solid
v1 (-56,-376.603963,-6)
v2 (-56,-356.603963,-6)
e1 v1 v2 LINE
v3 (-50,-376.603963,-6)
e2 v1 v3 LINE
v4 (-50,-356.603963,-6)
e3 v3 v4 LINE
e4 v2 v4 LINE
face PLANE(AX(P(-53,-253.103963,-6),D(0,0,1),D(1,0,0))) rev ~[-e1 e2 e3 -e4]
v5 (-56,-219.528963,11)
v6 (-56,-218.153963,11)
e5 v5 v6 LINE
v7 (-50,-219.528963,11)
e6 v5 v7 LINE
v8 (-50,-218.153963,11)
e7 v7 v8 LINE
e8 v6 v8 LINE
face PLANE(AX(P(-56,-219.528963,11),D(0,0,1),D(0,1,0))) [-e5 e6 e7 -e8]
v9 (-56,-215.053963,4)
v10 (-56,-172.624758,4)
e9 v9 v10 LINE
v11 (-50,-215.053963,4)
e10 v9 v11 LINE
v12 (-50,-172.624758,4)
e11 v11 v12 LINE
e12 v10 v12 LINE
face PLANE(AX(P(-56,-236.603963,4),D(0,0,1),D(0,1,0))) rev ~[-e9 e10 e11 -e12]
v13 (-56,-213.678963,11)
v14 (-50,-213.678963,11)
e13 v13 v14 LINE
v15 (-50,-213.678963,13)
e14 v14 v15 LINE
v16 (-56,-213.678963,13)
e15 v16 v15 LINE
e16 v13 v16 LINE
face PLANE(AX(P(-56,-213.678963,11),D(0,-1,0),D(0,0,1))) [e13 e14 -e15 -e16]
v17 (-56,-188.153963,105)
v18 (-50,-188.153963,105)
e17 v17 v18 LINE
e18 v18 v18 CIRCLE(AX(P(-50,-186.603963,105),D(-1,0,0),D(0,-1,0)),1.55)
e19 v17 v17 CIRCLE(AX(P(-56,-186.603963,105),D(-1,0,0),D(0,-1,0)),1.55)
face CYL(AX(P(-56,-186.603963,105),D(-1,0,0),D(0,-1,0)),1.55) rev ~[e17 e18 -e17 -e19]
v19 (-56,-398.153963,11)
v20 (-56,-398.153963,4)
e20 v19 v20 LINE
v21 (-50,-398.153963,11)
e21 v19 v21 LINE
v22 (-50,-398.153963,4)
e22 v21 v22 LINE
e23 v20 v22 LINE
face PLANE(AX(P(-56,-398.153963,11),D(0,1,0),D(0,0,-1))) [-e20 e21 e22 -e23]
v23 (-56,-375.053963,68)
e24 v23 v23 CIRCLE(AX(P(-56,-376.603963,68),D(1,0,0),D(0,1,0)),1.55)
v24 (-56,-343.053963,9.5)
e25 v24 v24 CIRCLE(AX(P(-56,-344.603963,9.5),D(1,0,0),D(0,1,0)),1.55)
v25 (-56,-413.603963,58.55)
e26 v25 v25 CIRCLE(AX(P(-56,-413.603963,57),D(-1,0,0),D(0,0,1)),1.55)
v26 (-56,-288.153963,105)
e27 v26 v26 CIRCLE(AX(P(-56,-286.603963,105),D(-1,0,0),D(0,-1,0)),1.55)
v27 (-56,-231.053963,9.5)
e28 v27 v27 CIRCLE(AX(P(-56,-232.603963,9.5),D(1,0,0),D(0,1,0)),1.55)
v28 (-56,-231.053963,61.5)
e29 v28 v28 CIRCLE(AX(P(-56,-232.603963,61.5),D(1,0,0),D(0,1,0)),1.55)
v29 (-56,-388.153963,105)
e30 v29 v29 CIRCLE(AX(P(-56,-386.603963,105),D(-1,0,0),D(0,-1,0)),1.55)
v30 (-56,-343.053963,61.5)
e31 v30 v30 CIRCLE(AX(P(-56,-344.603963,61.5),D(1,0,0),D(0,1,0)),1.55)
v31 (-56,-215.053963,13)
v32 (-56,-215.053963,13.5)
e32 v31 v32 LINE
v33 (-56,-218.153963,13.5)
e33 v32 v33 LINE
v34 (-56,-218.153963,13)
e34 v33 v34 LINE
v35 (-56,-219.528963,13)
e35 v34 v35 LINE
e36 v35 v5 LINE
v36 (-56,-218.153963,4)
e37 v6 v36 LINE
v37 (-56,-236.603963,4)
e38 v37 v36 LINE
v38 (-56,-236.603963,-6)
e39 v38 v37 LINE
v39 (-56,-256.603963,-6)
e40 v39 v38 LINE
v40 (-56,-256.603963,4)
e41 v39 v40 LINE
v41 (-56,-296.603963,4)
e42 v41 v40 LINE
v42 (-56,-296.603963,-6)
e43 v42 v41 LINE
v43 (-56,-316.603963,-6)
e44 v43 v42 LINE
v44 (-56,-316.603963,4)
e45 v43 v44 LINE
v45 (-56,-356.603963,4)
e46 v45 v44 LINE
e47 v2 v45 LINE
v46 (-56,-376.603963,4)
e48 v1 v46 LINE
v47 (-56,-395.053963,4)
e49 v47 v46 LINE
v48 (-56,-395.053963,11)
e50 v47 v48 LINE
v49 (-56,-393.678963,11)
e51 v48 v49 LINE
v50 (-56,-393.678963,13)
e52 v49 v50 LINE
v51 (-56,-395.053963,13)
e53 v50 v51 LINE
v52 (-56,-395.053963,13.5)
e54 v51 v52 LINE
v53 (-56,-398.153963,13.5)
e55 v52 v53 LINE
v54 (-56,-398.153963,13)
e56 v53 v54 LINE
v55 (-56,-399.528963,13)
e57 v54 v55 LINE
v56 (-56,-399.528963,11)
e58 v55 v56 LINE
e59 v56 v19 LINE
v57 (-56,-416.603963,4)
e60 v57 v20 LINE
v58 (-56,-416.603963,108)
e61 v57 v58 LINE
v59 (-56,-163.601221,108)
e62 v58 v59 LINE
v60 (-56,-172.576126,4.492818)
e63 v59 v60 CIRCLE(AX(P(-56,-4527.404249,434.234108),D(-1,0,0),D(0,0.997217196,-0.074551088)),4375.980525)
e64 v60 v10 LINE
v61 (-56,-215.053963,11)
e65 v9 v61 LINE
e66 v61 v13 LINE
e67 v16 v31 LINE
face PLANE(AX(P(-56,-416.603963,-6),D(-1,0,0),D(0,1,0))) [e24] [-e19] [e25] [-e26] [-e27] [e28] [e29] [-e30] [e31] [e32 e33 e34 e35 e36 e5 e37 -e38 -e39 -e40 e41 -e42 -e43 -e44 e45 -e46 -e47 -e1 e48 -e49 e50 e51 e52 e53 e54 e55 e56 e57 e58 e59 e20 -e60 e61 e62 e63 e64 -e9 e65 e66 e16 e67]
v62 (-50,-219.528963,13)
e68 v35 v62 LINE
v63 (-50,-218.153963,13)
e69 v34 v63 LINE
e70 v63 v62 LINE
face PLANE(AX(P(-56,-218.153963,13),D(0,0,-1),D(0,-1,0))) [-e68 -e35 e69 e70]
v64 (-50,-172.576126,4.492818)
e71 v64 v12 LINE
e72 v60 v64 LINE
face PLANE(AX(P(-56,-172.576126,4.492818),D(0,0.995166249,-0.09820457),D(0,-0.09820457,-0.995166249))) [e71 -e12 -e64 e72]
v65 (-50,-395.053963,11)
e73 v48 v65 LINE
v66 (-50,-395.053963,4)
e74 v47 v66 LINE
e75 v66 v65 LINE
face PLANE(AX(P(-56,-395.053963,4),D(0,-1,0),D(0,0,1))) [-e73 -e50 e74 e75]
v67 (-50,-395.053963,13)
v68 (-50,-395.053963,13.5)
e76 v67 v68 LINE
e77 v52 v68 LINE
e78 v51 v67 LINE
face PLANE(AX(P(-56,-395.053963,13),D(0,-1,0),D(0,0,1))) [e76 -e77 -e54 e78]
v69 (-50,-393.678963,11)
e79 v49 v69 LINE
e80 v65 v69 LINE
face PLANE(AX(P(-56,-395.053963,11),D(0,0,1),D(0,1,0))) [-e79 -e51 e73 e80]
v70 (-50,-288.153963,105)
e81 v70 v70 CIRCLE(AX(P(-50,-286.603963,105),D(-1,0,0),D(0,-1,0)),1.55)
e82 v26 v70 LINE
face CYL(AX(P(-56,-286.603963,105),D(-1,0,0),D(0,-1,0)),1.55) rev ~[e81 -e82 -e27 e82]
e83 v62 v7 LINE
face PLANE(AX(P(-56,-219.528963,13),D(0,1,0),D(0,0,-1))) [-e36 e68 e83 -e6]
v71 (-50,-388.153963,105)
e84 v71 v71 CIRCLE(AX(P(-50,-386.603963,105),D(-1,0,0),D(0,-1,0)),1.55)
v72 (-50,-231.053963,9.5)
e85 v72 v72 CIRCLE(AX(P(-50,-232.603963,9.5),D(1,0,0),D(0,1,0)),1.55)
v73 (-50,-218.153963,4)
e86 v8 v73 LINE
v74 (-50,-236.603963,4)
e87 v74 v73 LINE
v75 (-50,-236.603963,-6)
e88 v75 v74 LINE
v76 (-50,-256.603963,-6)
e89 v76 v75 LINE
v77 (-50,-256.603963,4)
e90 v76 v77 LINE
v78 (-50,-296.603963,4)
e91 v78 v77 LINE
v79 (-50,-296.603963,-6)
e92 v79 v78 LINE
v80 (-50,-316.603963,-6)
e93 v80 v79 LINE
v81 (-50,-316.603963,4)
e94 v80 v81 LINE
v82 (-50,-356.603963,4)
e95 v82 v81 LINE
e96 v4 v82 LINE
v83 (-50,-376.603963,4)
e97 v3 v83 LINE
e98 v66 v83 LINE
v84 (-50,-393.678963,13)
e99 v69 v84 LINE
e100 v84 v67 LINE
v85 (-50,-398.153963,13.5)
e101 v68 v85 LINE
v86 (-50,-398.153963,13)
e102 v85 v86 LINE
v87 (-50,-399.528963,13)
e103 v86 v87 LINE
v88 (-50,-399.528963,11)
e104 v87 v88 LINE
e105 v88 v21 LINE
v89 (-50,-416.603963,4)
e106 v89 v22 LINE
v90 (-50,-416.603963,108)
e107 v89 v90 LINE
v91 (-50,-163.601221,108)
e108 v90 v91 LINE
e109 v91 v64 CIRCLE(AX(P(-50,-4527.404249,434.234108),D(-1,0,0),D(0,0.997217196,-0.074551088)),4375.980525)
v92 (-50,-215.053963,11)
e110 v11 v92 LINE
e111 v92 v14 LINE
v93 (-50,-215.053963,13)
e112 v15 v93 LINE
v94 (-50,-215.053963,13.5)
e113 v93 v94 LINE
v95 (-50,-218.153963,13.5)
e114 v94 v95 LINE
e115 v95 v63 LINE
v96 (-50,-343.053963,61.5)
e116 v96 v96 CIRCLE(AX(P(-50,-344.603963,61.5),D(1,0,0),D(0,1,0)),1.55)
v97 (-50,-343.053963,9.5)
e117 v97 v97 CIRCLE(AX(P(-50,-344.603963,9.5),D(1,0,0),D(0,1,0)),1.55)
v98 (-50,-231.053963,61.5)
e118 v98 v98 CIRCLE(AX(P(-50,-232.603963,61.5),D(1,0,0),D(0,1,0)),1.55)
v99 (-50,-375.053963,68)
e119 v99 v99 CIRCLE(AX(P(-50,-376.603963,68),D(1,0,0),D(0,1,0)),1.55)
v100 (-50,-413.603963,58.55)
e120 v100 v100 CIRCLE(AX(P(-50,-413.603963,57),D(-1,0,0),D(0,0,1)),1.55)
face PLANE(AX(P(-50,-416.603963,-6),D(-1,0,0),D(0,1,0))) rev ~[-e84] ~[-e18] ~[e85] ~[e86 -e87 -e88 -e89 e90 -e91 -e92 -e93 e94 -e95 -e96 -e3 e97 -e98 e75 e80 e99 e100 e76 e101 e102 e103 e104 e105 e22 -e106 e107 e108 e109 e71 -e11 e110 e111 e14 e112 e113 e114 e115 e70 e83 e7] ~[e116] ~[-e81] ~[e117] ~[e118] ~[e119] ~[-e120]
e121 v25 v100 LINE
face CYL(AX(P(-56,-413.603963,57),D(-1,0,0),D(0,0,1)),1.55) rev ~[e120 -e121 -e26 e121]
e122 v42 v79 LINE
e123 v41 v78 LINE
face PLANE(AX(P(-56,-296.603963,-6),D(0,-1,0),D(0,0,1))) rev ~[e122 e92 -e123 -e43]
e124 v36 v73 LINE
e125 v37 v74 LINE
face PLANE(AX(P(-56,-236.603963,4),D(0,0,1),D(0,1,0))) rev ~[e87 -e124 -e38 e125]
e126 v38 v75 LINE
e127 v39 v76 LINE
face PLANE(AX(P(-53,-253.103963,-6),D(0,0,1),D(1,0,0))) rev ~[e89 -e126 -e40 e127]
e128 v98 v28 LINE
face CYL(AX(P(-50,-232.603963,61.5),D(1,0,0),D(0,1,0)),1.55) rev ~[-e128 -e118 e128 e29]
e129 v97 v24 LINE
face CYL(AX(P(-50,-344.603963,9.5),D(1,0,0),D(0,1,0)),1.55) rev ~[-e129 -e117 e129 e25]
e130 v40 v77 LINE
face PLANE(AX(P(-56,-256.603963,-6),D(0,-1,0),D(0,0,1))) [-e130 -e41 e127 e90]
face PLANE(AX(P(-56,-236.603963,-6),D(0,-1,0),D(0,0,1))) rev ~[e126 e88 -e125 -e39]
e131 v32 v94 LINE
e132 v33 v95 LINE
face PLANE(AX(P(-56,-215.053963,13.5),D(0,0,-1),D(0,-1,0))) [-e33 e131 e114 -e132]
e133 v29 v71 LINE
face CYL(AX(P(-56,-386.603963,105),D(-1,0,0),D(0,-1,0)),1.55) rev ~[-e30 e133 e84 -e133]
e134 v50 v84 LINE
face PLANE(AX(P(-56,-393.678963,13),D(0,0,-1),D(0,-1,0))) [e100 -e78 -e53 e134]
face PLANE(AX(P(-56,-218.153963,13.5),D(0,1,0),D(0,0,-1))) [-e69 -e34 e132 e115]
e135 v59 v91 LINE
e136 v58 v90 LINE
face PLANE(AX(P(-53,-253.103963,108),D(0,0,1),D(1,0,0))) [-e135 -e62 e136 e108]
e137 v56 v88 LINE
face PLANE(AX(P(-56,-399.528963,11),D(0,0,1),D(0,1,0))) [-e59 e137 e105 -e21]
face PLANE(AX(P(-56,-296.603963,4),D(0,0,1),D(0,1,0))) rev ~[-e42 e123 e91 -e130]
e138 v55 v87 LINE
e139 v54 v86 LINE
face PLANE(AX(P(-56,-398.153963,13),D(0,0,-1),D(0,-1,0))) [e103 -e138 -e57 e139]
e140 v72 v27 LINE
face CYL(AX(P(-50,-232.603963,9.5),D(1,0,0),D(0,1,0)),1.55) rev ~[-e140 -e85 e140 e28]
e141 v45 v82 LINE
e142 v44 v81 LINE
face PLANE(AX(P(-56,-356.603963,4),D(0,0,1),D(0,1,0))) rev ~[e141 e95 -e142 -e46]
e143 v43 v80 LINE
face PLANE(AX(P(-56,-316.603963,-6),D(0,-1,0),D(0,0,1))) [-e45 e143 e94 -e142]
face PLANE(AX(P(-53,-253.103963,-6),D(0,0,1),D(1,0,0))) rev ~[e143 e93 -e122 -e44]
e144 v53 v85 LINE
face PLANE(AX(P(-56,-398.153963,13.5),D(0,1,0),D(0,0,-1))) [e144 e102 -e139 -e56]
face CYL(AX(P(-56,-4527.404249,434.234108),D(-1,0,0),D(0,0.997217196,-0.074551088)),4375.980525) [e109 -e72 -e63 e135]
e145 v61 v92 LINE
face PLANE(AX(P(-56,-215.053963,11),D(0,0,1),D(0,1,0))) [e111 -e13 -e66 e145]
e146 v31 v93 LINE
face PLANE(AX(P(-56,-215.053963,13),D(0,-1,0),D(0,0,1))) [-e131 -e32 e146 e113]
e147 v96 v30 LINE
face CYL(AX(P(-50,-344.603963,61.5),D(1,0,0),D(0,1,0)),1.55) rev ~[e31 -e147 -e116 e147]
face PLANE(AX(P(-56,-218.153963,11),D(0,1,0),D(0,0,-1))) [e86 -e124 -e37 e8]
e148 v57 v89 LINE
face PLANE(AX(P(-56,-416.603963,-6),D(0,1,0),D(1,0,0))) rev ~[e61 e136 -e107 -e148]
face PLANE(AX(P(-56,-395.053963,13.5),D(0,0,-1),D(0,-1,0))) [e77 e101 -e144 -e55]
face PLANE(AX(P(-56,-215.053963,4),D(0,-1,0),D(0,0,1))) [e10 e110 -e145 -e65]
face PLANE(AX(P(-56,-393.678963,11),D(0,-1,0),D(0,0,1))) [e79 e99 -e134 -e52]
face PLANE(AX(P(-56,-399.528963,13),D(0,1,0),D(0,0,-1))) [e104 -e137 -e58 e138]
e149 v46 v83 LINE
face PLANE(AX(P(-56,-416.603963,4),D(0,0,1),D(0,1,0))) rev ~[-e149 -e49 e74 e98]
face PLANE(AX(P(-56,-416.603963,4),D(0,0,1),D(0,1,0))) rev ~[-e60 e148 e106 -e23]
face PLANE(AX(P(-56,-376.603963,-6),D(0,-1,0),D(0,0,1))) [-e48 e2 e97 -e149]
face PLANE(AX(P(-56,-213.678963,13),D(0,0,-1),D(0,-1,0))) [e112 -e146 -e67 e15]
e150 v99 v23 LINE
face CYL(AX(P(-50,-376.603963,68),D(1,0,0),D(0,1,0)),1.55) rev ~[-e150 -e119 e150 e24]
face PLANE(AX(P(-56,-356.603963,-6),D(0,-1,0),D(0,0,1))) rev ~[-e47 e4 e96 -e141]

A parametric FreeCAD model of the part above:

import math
import FreeCAD as App
import Part
import Sketcher


def add_polygon(sketch, points):
    """Adds a closed chain of lines whose ends are joined by coincident constraints."""
    first, n = sketch.GeometryCount, len(points)
    for a, b in zip(points, points[1:] + points[:1]):
        sketch.addGeometry(Part.LineSegment(App.Vector(*a, 0), App.Vector(*b, 0)), False)
    for i in range(n):
        sketch.addConstraint(Sketcher.Constraint("Coincident", first + i, 2, first + (i + 1) % n, 1))

doc = App.newDocument("Part")
body = doc.addObject("PartDesign::Body", "Body")

# Sketch on XY plane
sketch1 = body.newObject("Sketcher::SketchObject", "Sketch")
sketch1.AttachmentSupport = (doc.getObject("XY_Plane"), [""])
sketch1.MapMode = "FlatFace"
add_polygon(sketch1, [(-56, -90), (-56, -417), (-50, -417), (-50, -90)])  # lines 0-3
sketch1.addConstraint([
    Sketcher.Constraint("Vertical", 0),
    Sketcher.Constraint("Horizontal", 1),
    Sketcher.Constraint("Vertical", 2),
    Sketcher.Constraint("Horizontal", 3),
    Sketcher.Constraint("DistanceX", 1, 1, 1, 2, 6.0),
    Sketcher.Constraint("DistanceY", 0, 2, 0, 1, 327.0),
    Sketcher.Constraint("DistanceX", 0, 2, -1, 1, 56.0),
    Sketcher.Constraint("DistanceY", 0, 2, -1, 1, 416.603963),
])
pad1 = body.newObject("PartDesign::Pad", "Pad")
pad1.Profile = sketch1
pad1.Type = "TwoLengths"
pad1.Length = 108
pad1.Length2 = 6

# Sketch on YZ plane
sketch2 = body.newObject("Sketcher::SketchObject", "Sketch001")
sketch2.AttachmentSupport = (doc.getObject("YZ_Plane"), [""])
sketch2.MapMode = "FlatFace"
sketch2.AttachmentOffset = App.Placement(App.Vector(0, 0, -56), App.Rotation())
add_polygon(sketch2, [(-377, -6), (-417, -6), (-417, 4), (-377, 4)])  # lines 0-3
add_polygon(sketch2, [(-317, -6), (-357, -6), (-357, 4), (-317, 4)])  # lines 4-7
add_polygon(sketch2, [(-43, 4), (-43, -6), (-237, -6), (-237, 4)])  # lines 8-11
add_polygon(sketch2, [(-257, -6), (-297, -6), (-297, 4), (-257, 4)])  # lines 12-15
sketch2.addConstraint([
    Sketcher.Constraint("Horizontal", 0),
    Sketcher.Constraint("Vertical", 1),
    Sketcher.Constraint("Horizontal", 2),
    Sketcher.Constraint("Vertical", 3),
    Sketcher.Constraint("Horizontal", 4),
    Sketcher.Constraint("Vertical", 5),
    Sketcher.Constraint("Horizontal", 6),
    Sketcher.Constraint("Vertical", 7),
    Sketcher.Constraint("Vertical", 8),
    Sketcher.Constraint("Horizontal", 9),
    Sketcher.Constraint("Vertical", 10),
    Sketcher.Constraint("Horizontal", 11),
    Sketcher.Constraint("Horizontal", 12),
    Sketcher.Constraint("Vertical", 13),
    Sketcher.Constraint("Horizontal", 14),
    Sketcher.Constraint("Vertical", 15),
    Sketcher.Constraint("Horizontal", 3, 2, 4, 2),
    Sketcher.Constraint("Horizontal", 2, 2, 5, 2),
    Sketcher.Constraint("Horizontal", 7, 2, 8, 2),
    Sketcher.Constraint("Horizontal", 6, 2, 10, 2),
    Sketcher.Constraint("Horizontal", 9, 2, 12, 2),
    Sketcher.Constraint("Horizontal", 11, 2, 13, 2),
    Sketcher.Constraint("Equal", 2, 4),
    Sketcher.Constraint("Equal", 6, 12),
    Sketcher.Constraint("DistanceX", 0, 2, 0, 1, 40.0),
    Sketcher.Constraint("DistanceY", 1, 1, 1, 2, 10.0),
    Sketcher.Constraint("DistanceY", 0, 2, -1, 1, 6.0),
    Sketcher.Constraint("DistanceX", 3, 2, 4, 2, 20.0),
    Sketcher.Constraint("DistanceX", 7, 2, 9, 2, 80.0),
    Sketcher.Constraint("DistanceX", 7, 2, 12, 2, 20.0),
    Sketcher.Constraint("DistanceX", 9, 2, 9, 1, 193.984108),
    Sketcher.Constraint("DistanceX", 0, 2, -1, 1, 416.603963),
])
pocket1 = body.newObject("PartDesign::Pocket", "Pocket")
pocket1.Profile = sketch2
pocket1.Length = 6
pocket1.Reversed = True

# Sketch on YZ plane
sketch3 = body.newObject("Sketcher::SketchObject", "Sketch002")
sketch3.AttachmentSupport = (doc.getObject("YZ_Plane"), [""])
sketch3.MapMode = "FlatFace"
sketch3.AttachmentOffset = App.Placement(App.Vector(0, 0, -56), App.Rotation())
sketch3.addGeometry(Part.Circle(App.Vector(-413.6, 57, 0), App.Vector(0, 0, 1), 1.6), False)
sketch3.addConstraint([
    Sketcher.Constraint("Diameter", 0, 3.1),
    Sketcher.Constraint("DistanceY", -1, 1, 0, 3, 57.0),
    Sketcher.Constraint("DistanceX", 0, 3, -1, 1, 413.603963),
])
pocket2 = body.newObject("PartDesign::Pocket", "Pocket001")
pocket2.Profile = sketch3
pocket2.Length = 6
pocket2.Reversed = True

# Sketch on YZ plane
sketch4 = body.newObject("Sketcher::SketchObject", "Sketch003")
sketch4.AttachmentSupport = (doc.getObject("YZ_Plane"), [""])
sketch4.MapMode = "FlatFace"
sketch4.AttachmentOffset = App.Placement(App.Vector(0, 0, -56), App.Rotation())
add_polygon(sketch4, [(-395.1, 11), (-395.1, 4), (-398.2, 4), (-398.2, 11), (-399.5, 11), (-399.5, 13), (-398.2, 13), (-398.2, 13.5), (-395.1, 13.5), (-395.1, 13), (-393.7, 13), (-393.7, 11)])  # lines 0-11
sketch4.addConstraint([
    Sketcher.Constraint("Vertical", 0),
    Sketcher.Constraint("Horizontal", 1),
    Sketcher.Constraint("Vertical", 2),
    Sketcher.Constraint("Horizontal", 3),
    Sketcher.Constraint("Vertical", 4),
    Sketcher.Constraint("Horizontal", 5),
    Sketcher.Constraint("Vertical", 6),
    Sketcher.Constraint("Horizontal", 7),
    Sketcher.Constraint("Vertical", 8),
    Sketcher.Constraint("Horizontal", 9),
    Sketcher.Constraint("Vertical", 10),
    Sketcher.Constraint("Horizontal", 11),
    Sketcher.Constraint("Horizontal", 5, 2, 8, 2),
    Sketcher.Constraint("Horizontal", 3, 2, 10, 2),
    Sketcher.Constraint("Vertical", 2, 2, 5, 2),
    Sketcher.Constraint("Vertical", 0, 2, 7, 2),
    Sketcher.Constraint("Equal", 5, 9),
    Sketcher.Constraint("DistanceY", 0, 2, 0, 1, 7.0),
    Sketcher.Constraint("DistanceY", 4, 1, 4, 2, 2.0),
    Sketcher.Constraint("DistanceX", 1, 2, 1, 1, 3.1),
    Sketcher.Constraint("DistanceY", 6, 1, 6, 2, 0.5),
    Sketcher.Constraint("DistanceY", -1, 1, 0, 2, 4.0),
    Sketcher.Constraint("DistanceX", 3, 2, 3, 1, 1.375),
    Sketcher.Constraint("DistanceX", 0, 2, -1, 1, 395.053963),
])
pocket3 = body.newObject("PartDesign::Pocket", "Pocket002")
pocket3.Profile = sketch4
pocket3.Length = 6
pocket3.Reversed = True
doc.recompute()

linearpattern = body.newObject("PartDesign::LinearPattern", "LinearPattern")
linearpattern.Originals = [pocket3]
linearpattern.Direction = (doc.getObject("Y_Axis"), [""])
linearpattern.Mode = "offset"
linearpattern.Offset = 180
linearpattern.Occurrences = 2
body.Tip = linearpattern

# Sketch on YZ plane
sketch5 = body.newObject("Sketcher::SketchObject", "Sketch004")
sketch5.AttachmentSupport = (doc.getObject("YZ_Plane"), [""])
sketch5.MapMode = "FlatFace"
sketch5.AttachmentOffset = App.Placement(App.Vector(0, 0, -56), App.Rotation())
add_polygon(sketch5, [(-90, 54), (-103, 54), (-103, 76), (-90, 76)])  # lines 0-3
sketch5.addConstraint([
    Sketcher.Constraint("Horizontal", 0),
    Sketcher.Constraint("Vertical", 1),
    Sketcher.Constraint("Horizontal", 2),
    Sketcher.Constraint("Vertical", 3),
    Sketcher.Constraint("DistanceX", 0, 2, 0, 1, 13.0),
    Sketcher.Constraint("DistanceY", 1, 1, 1, 2, 22.0),
    Sketcher.Constraint("DistanceY", -1, 1, 0, 2, 54.0),
    Sketcher.Constraint("DistanceX", 0, 2, -1, 1, 102.603963),
])
pocket4 = body.newObject("PartDesign::Pocket", "Pocket003")
pocket4.Profile = sketch5
pocket4.Length = 6
pocket4.Reversed = True

# Sketch on YZ plane
sketch6 = body.newObject("Sketcher::SketchObject", "Sketch005")
sketch6.AttachmentSupport = (doc.getObject("YZ_Plane"), [""])
sketch6.MapMode = "FlatFace"
sketch6.AttachmentOffset = App.Placement(App.Vector(0, 0, -56), App.Rotation())
sketch6.addGeometry(Part.Circle(App.Vector(-386.6, 105, 0), App.Vector(0, 0, 1), 1.6), False)
sketch6.addConstraint([
    Sketcher.Constraint("Diameter", 0, 3.1),
    Sketcher.Constraint("DistanceY", -1, 1, 0, 3, 105.0),
    Sketcher.Constraint("DistanceX", 0, 3, -1, 1, 386.603963),
])
pocket5 = body.newObject("PartDesign::Pocket", "Pocket004")
pocket5.Profile = sketch6
pocket5.Length = 6
pocket5.Reversed = True
doc.recompute()

linearpattern2 = body.newObject("PartDesign::LinearPattern", "LinearPattern001")
linearpattern2.Originals = [pocket5]
linearpattern2.Direction = (doc.getObject("Y_Axis"), [""])
linearpattern2.Mode = "offset"
linearpattern2.Offset = 100
linearpattern2.Occurrences = 2
body.Tip = linearpattern2
doc.recompute()

linearpattern3 = body.newObject("PartDesign::LinearPattern", "LinearPattern002")
linearpattern3.Originals = [pocket5]
linearpattern3.Direction = (doc.getObject("Y_Axis"), [""])
linearpattern3.Mode = "offset"
linearpattern3.Offset = 200
linearpattern3.Occurrences = 2
body.Tip = linearpattern3

# Sketch on YZ plane
sketch7 = body.newObject("Sketcher::SketchObject", "Sketch006")
sketch7.AttachmentSupport = (doc.getObject("YZ_Plane"), [""])
sketch7.MapMode = "FlatFace"
sketch7.AttachmentOffset = App.Placement(App.Vector(0, 0, -50), App.Rotation())
sketch7.addGeometry([
    Part.Circle(App.Vector(-376.6, 68, 0), App.Vector(0, 0, 1), 1.6),  # 0
    Part.Circle(App.Vector(-232.6, 9.5, 0), App.Vector(0, 0, 1), 1.6),  # 1
    Part.Circle(App.Vector(-232.6, 61.5, 0), App.Vector(0, 0, 1), 1.6),  # 2
    Part.Circle(App.Vector(-344.6, 61.5, 0), App.Vector(0, 0, 1), 1.6),  # 3
    Part.Circle(App.Vector(-344.6, 9.5, 0), App.Vector(0, 0, 1), 1.6),  # 4
], False)
sketch7.addConstraint([
    Sketcher.Constraint("Equal", 0, 1),
    Sketcher.Constraint("Equal", 1, 2),
    Sketcher.Constraint("Equal", 2, 3),
    Sketcher.Constraint("Equal", 3, 4),
    Sketcher.Constraint("Horizontal", 2, 3, 3, 3),
    Sketcher.Constraint("Horizontal", 1, 3, 4, 3),
    Sketcher.Constraint("Vertical", 1, 3, 2, 3),
    Sketcher.Constraint("Vertical", 3, 3, 4, 3),
    Sketcher.Constraint("Diameter", 0, 3.1),
    Sketcher.Constraint("DistanceY", -1, 1, 0, 3, 68.0),
    Sketcher.Constraint("DistanceX", 0, 3, 1, 3, 144.0),
    Sketcher.Constraint("DistanceY", 1, 3, 2, 3, 52.0),
    Sketcher.Constraint("DistanceX", 0, 3, 3, 3, 32.0),
    Sketcher.Constraint("DistanceY", -1, 1, 1, 3, 9.5),
    Sketcher.Constraint("DistanceX", 0, 3, -1, 1, 376.603963),
])
pocket6 = body.newObject("PartDesign::Pocket", "Pocket005")
pocket6.Profile = sketch7
pocket6.Length = 6

# Sketch on YZ plane
sketch8 = body.newObject("Sketcher::SketchObject", "Sketch007")
sketch8.AttachmentSupport = (doc.getObject("YZ_Plane"), [""])
sketch8.MapMode = "FlatFace"
sketch8.AttachmentOffset = App.Placement(App.Vector(0, 0, -56), App.Rotation())
sketch8.addGeometry([
    Part.LineSegment(App.Vector(-89.6, 4, 0), App.Vector(-172.62, 4, 0)),  # 0
    Part.LineSegment(App.Vector(-172.62, 4, 0), App.Vector(-172.58, 4.49, 0)),  # 1
    Part.ArcOfCircle(Part.Circle(App.Vector(-4527.4, 434.23, 0), App.Vector(0, 0, 1), 4375.98), math.radians(-5.64), math.radians(-4.28)),  # 2
    Part.LineSegment(App.Vector(-163.6, 108, 0), App.Vector(-89.6, 108, 0)),  # 3
    Part.LineSegment(App.Vector(-89.6, 108, 0), App.Vector(-89.6, 76, 0)),  # 4
    Part.LineSegment(App.Vector(-89.6, 76, 0), App.Vector(-102.6, 76, 0)),  # 5
    Part.LineSegment(App.Vector(-102.6, 76, 0), App.Vector(-102.6, 54, 0)),  # 6
    Part.LineSegment(App.Vector(-102.6, 54, 0), App.Vector(-89.6, 54, 0)),  # 7
    Part.LineSegment(App.Vector(-89.6, 54, 0), App.Vector(-89.6, 4, 0)),  # 8
], False)
sketch8.addConstraint([
    Sketcher.Constraint("Coincident", 0, 2, 1, 1),
    Sketcher.Constraint("Tangent", 1, 2, 2, 1),
    Sketcher.Constraint("Coincident", 2, 2, 3, 1),
    Sketcher.Constraint("Coincident", 3, 2, 4, 1),
    Sketcher.Constraint("Coincident", 4, 2, 5, 1),
    Sketcher.Constraint("Coincident", 5, 2, 6, 1),
    Sketcher.Constraint("Coincident", 6, 2, 7, 1),
    Sketcher.Constraint("Coincident", 7, 2, 8, 1),
    Sketcher.Constraint("Coincident", 8, 2, 0, 1),
    Sketcher.Constraint("Horizontal", 0),
    Sketcher.Constraint("Horizontal", 3),
    Sketcher.Constraint("Vertical", 4),
    Sketcher.Constraint("Horizontal", 5),
    Sketcher.Constraint("Vertical", 6),
    Sketcher.Constraint("Horizontal", 7),
    Sketcher.Constraint("Vertical", 8),
    Sketcher.Constraint("Vertical", 4, 2, 7, 2),
    Sketcher.Constraint("DistanceX", 5, 2, 5, 1, 13.0),
    Sketcher.Constraint("DistanceY", 4, 2, 4, 1, 32.0),
    Sketcher.Constraint("DistanceY", 6, 2, 6, 1, 22.0),
    Sketcher.Constraint("DistanceY", 8, 2, 8, 1, 50.0),
    Sketcher.Constraint("DistanceY", -1, 1, 0, 2, 4.0),
    Sketcher.Constraint("Radius", 2, 4375.980525),
    Sketcher.Constraint("DistanceX", 3, 1, 3, 2, 73.997258),
    Sketcher.Constraint("DistanceX", 0, 2, 0, 1, 83.020795),
    Sketcher.Constraint("DistanceX", 2, 3, -1, 1, 4527.404249),
    Sketcher.Constraint("DistanceY", -1, 1, 1, 2, 4.492818),
])
pocket7 = body.newObject("PartDesign::Pocket", "Pocket006")
pocket7.Profile = sketch8
pocket7.Length = 6
pocket7.Reversed = True

doc.recompute()
